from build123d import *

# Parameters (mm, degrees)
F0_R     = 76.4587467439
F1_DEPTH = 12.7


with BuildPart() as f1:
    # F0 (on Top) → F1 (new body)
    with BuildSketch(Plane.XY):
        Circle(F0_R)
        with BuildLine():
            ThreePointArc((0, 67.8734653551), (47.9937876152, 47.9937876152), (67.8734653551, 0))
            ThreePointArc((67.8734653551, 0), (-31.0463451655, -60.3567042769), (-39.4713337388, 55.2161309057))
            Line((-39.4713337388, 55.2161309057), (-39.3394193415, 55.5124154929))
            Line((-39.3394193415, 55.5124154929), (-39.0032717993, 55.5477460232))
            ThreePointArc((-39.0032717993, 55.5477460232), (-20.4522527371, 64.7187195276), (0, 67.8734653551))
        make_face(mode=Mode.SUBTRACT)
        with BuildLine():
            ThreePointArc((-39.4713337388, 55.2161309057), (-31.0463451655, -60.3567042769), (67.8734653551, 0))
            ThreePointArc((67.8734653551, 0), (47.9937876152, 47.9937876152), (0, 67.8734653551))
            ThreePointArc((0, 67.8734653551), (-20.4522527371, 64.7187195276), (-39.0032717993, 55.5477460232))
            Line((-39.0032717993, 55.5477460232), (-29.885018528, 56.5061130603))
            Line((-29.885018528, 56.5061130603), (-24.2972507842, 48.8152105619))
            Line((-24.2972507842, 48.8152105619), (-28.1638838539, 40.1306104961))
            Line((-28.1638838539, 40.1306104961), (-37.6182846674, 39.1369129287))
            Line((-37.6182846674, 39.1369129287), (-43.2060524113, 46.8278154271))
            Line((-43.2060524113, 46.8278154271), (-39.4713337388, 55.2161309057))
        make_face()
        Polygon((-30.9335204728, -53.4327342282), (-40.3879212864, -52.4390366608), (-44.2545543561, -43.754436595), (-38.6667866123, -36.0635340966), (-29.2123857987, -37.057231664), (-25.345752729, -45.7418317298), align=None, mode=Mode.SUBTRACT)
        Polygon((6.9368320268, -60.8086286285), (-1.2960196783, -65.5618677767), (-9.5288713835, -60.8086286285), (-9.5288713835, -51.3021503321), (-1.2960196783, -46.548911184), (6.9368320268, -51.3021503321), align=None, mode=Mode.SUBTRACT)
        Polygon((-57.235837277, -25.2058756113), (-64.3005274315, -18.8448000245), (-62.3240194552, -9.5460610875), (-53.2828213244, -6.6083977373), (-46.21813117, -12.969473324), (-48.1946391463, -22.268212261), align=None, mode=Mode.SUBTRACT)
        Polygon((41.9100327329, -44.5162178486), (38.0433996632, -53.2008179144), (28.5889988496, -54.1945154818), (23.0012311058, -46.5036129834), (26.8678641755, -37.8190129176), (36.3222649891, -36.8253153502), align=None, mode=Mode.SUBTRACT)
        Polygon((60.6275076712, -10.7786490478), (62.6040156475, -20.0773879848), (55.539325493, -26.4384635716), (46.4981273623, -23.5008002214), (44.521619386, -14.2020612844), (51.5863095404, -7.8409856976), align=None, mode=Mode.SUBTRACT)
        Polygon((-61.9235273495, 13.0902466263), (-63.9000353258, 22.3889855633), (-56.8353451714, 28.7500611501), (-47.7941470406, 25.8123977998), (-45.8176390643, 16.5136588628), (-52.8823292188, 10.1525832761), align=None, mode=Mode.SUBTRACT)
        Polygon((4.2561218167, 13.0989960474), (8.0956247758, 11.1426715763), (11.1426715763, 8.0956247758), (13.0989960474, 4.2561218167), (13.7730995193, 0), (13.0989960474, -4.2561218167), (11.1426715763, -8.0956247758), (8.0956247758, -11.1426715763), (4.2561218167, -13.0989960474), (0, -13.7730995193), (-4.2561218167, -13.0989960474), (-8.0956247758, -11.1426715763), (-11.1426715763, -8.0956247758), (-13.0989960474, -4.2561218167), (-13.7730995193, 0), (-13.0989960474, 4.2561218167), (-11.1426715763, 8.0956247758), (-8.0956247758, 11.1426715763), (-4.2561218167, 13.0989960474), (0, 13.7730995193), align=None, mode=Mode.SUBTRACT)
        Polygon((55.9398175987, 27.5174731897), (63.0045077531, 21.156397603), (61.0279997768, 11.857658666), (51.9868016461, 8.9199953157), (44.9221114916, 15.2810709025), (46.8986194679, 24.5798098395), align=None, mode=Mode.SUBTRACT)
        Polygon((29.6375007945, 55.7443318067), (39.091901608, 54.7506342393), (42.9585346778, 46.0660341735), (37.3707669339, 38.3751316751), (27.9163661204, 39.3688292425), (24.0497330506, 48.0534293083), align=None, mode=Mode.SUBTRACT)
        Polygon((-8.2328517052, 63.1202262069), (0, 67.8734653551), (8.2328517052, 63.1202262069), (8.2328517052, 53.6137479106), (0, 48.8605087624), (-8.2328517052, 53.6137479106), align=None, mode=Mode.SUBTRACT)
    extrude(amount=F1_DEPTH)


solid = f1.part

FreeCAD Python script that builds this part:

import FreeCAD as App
import Part
import Sketcher
from FreeCAD import Vector
Q = App.Units.Quantity


def add_polygon(sketch, points):
    """Adds a closed chain of lines whose ends are joined by coincident constraints."""
    first, n = sketch.GeometryCount, len(points)
    for a, b in zip(points, points[1:] + points[:1]):
        sketch.addGeometry(Part.LineSegment(App.Vector(*a, 0), App.Vector(*b, 0)), False)
    for i in range(n):
        sketch.addConstraint(Sketcher.Constraint("Coincident", first + i, 2, first + (i + 1) % n, 1))

doc = App.newDocument("Part")
body = doc.addObject("PartDesign::Body", "Body")

sketch1 = doc.addObject("Sketcher::SketchObject", "Sketch")
body.addObject(sketch1)
sketch1.AttachmentSupport = (doc.XY_Plane, [""])
sketch1.MapMode = "FlatFace"
sketch1.addGeometry(Part.Circle(Vector(0, 0, 0), Vector(0, 0, 1), 76.458747), False)
add_polygon(sketch1, [(-25.345753, -45.741832), (-30.93352, -53.432734), (-40.387921, -52.439037), (-44.254554, -43.754437), (-38.666787, -36.063534), (-29.212386, -37.057232)])
add_polygon(sketch1, [(6.936832, -51.30215), (6.936832, -60.808629), (-1.29602, -65.561868), (-9.528871, -60.808629), (-9.528871, -51.30215), (-1.29602, -46.548911)])
add_polygon(sketch1, [(-48.194639, -22.268212), (-57.235837, -25.205876), (-64.300527, -18.8448), (-62.324019, -9.546061), (-53.282821, -6.608398), (-46.218131, -12.969473)])
add_polygon(sketch1, [(36.322265, -36.825315), (41.910033, -44.516218), (38.0434, -53.200818), (28.588999, -54.194515), (23.001231, -46.503613), (26.867864, -37.819013)])
add_polygon(sketch1, [(0, 13.7731), (4.256122, 13.098996), (8.095625, 11.142672), (11.142672, 8.095625), (13.098996, 4.256122), (13.7731, 0), (13.098996, -4.256122), (11.142672, -8.095625), (8.095625, -11.142672), (4.256122, -13.098996), (0, -13.7731), (-4.256122, -13.098996), (-8.095625, -11.142672), (-11.142672, -8.095625), (-13.098996, -4.256122), (-13.7731, 0), (-13.098996, 4.256122), (-11.142672, 8.095625), (-8.095625, 11.142672), (-4.256122, 13.098996)])
add_polygon(sketch1, [(51.58631, -7.840986), (60.627508, -10.778649), (62.604016, -20.077388), (55.539325, -26.438464), (46.498127, -23.5008), (44.521619, -14.202061)])
add_polygon(sketch1, [(-52.882329, 10.152583), (-61.923527, 13.090247), (-63.900035, 22.388986), (-56.835345, 28.750061), (-47.794147, 25.812398), (-45.817639, 16.513659)])
add_polygon(sketch1, [(-39.339419, 55.512415), (-39.003272, 55.547746), (-29.885019, 56.506113), (-24.297251, 48.815211), (-28.163884, 40.13061), (-37.618285, 39.136913), (-43.206052, 46.827815), (-39.471334, 55.216131)])
add_polygon(sketch1, [(46.898619, 24.57981), (55.939818, 27.517473), (63.004508, 21.156398), (61.028, 11.857659), (51.986802, 8.919995), (44.922111, 15.281071)])
add_polygon(sketch1, [(-8.232852, 53.613748), (-8.232852, 63.120226), (0, 67.873465), (8.232852, 63.120226), (8.232852, 53.613748), (0, 48.860509)])
add_polygon(sketch1, [(24.049733, 48.053429), (29.637501, 55.744332), (39.091902, 54.750634), (42.958535, 46.066034), (37.370767, 38.375132), (27.916366, 39.368829)])
sketch1.addConstraint([
    Sketcher.Constraint("Vertical", 7),
    Sketcher.Constraint("Vertical", 10),
    Sketcher.Constraint("Vertical", 71),
    Sketcher.Constraint("Vertical", 74),
    Sketcher.Constraint("Coincident", 0, 3, -1, 1),
    Sketcher.Constraint("Symmetric", 25, 2, 35, 2, -1, 1),
    Sketcher.Constraint("Symmetric", 26, 2, 36, 2, -1, 1),
    Sketcher.Constraint("Symmetric", 27, 2, 37, 2, -1, 1),
    Sketcher.Constraint("Symmetric", 28, 2, 38, 2, -1, 1),
    Sketcher.Constraint("Symmetric", 29, 2, 39, 2, -1, 1),
    Sketcher.Constraint("Symmetric", 30, 2, 40, 2, -1, 1),
    Sketcher.Constraint("Symmetric", 31, 2, 41, 2, -1, 1),
    Sketcher.Constraint("Symmetric", 32, 2, 42, 2, -1, 1),
    Sketcher.Constraint("Symmetric", 33, 2, 43, 2, -1, 1),
    Sketcher.Constraint("Symmetric", 34, 2, 44, 2, -1, 1),
    Sketcher.Constraint("Symmetric", 33, 2, 35, 2, -2),
    Sketcher.Constraint("Symmetric", 32, 2, 36, 2, -2),
    Sketcher.Constraint("Symmetric", 31, 2, 37, 2, -2),
    Sketcher.Constraint("Symmetric", 30, 2, 38, 2, -2),
    Sketcher.Constraint("Symmetric", 71, 2, 73, 2, -2),
    Sketcher.Constraint("PointOnObject", 29, 2, -1),
    Sketcher.Constraint("PointOnObject", 34, 2, -2),
    Sketcher.Constraint("PointOnObject", 72, 2, -2),
    Sketcher.Constraint("PointOnObject", 75, 2, -2),
    Sketcher.Constraint("Parallel", 1, 4),
    Sketcher.Constraint("Parallel", 2, 5),
    Sketcher.Constraint("Parallel", 3, 6),
    Sketcher.Constraint("Parallel", 8, 11),
    Sketcher.Constraint("Parallel", 9, 12),
    Sketcher.Constraint("Parallel", 13, 16),
    Sketcher.Constraint("Parallel", 14, 17),
    Sketcher.Constraint("Parallel", 15, 18),
    Sketcher.Constraint("Parallel", 19, 22),
    Sketcher.Constraint("Parallel", 20, 23),
    Sketcher.Constraint("Parallel", 21, 24),
    Sketcher.Constraint("Perpendicular", 25, 30),
    Sketcher.Constraint("Perpendicular", 26, 31),
    Sketcher.Constraint("Perpendicular", 27, 32),
    Sketcher.Constraint("Parallel", 45, 48),
    Sketcher.Constraint("Parallel", 46, 49),
    Sketcher.Constraint("Parallel", 47, 50),
    Sketcher.Constraint("Parallel", 48, 51),
    Sketcher.Constraint("Parallel", 49, 52),
    Sketcher.Constraint("Parallel", 50, 53),
    Sketcher.Constraint("Parallel", 51, 54),
    Sketcher.Constraint("Parallel", 52, 55),
    Sketcher.Constraint("Parallel", 53, 56),
    Sketcher.Constraint("Parallel", 24, 57),
    Sketcher.Constraint("Parallel", 57, 58),
    Sketcher.Constraint("Parallel", 22, 59),
    Sketcher.Constraint("Parallel", 23, 60),
    Sketcher.Constraint("Parallel", 58, 61),
    Sketcher.Constraint("Parallel", 59, 62),
    Sketcher.Constraint("Parallel", 60, 63),
    Sketcher.Constraint("Parallel", 63, 64),
    Sketcher.Constraint("Parallel", 16, 65),
    Sketcher.Constraint("Parallel", 17, 66),
    Sketcher.Constraint("Parallel", 18, 67),
    Sketcher.Constraint("Parallel", 65, 68),
    Sketcher.Constraint("Parallel", 66, 69),
    Sketcher.Constraint("Parallel", 67, 70),
    Sketcher.Constraint("Parallel", 11, 72),
    Sketcher.Constraint("Parallel", 12, 73),
    Sketcher.Constraint("Parallel", 72, 75),
    Sketcher.Constraint("Parallel", 73, 76),
    Sketcher.Constraint("Parallel", 4, 77),
    Sketcher.Constraint("Parallel", 5, 78),
    Sketcher.Constraint("Parallel", 6, 79),
    Sketcher.Constraint("Parallel", 77, 80),
    Sketcher.Constraint("Parallel", 78, 81),
    Sketcher.Constraint("Parallel", 79, 82),
    Sketcher.Constraint("Horizontal", 7, 2, 9, 2),
    Sketcher.Constraint("Horizontal", 10, 2, 12, 2),
    Sketcher.Constraint("Equal", 10, 71),
    Sketcher.Constraint("Equal", 1, 2),
    Sketcher.Constraint("Equal", 2, 3),
    Sketcher.Constraint("Equal", 3, 4),
    Sketcher.Constraint("Equal", 6, 8),
    Sketcher.Constraint("Equal", 12, 13),
    Sketcher.Constraint("Equal", 13, 14),
    Sketcher.Constraint("Equal", 14, 15),
    Sketcher.Constraint("Equal", 15, 16),
    Sketcher.Constraint("Equal", 18, 19),
    Sketcher.Constraint("Equal", 19, 20),
    Sketcher.Constraint("Equal", 20, 21),
    Sketcher.Constraint("Equal", 21, 22),
    Sketcher.Constraint("Equal", 25, 26),
    Sketcher.Constraint("Equal", 26, 27),
    Sketcher.Constraint("Equal", 27, 28),
    Sketcher.Constraint("Equal", 28, 29),
    Sketcher.Constraint("Equal", 24, 45),
    Sketcher.Constraint("Equal", 45, 46),
    Sketcher.Constraint("Equal", 46, 47),
    Sketcher.Constraint("Equal", 47, 48),
    Sketcher.Constraint("Equal", 50, 51),
    Sketcher.Constraint("Equal", 51, 52),
    Sketcher.Constraint("Equal", 52, 53),
    Sketcher.Constraint("Equal", 53, 54),
    Sketcher.Constraint("Equal", 56, 59),
    Sketcher.Constraint("Equal", 59, 60),
    Sketcher.Constraint("Equal", 60, 61),
    Sketcher.Constraint("Equal", 61, 62),
    Sketcher.Constraint("Equal", 62, 65),
    Sketcher.Constraint("Equal", 65, 66),
    Sketcher.Constraint("Equal", 66, 67),
    Sketcher.Constraint("Equal", 67, 68),
    Sketcher.Constraint("Equal", 70, 72),
    Sketcher.Constraint("Equal", 76, 77),
    Sketcher.Constraint("Equal", 77, 78),
    Sketcher.Constraint("Equal", 78, 79),
    Sketcher.Constraint("Equal", 79, 80),
    Sketcher.Constraint("Angle", 1, Q("-126 deg")),
    Sketcher.Constraint("Angle", 2, Q("174 deg")),
    Sketcher.Constraint("Angle", 3, Q("114 deg")),
    Sketcher.Constraint("Angle", 8, Q("-150 deg")),
    Sketcher.Constraint("Angle", 13, Q("-162 deg")),
    Sketcher.Constraint("Angle", 14, Q("138 deg")),
    Sketcher.Constraint("Angle", 15, Q("78 deg")),
    Sketcher.Constraint("Angle", 19, Q("-54 deg")),
    Sketcher.Constraint("Angle", 20, Q("-114 deg")),
    Sketcher.Constraint("Angle", 21, Q("-174 deg")),
    Sketcher.Constraint("Angle", 25, Q("-9 deg")),
    Sketcher.Constraint("Angle", 26, Q("-27 deg")),
    Sketcher.Constraint("Angle", 45, Q("-18 deg")),
    Sketcher.Constraint("Angle", 46, Q("-78 deg")),
    Sketcher.Constraint("Angle", 47, Q("-138 deg")),
    Sketcher.Constraint("Diameter", 0, 152.917493),
    Sketcher.Constraint("Distance", 57, 0.337999),
    Sketcher.Constraint("DistanceY", 7, 2, 7, 1, 9.506478),
    Sketcher.Constraint("DistanceY", 14, 2, -1, 1, 18.8448),
    Sketcher.Constraint("DistanceX", -1, 1, 20, 2, 38.0434),
    Sketcher.Constraint("DistanceX", -1, 1, 21, 2, 28.588999),
    Sketcher.Constraint("DistanceX", -1, 1, 29, 2, 13.7731),
    Sketcher.Constraint("DistanceY", 48, 2, -1, 1, 23.5008),
    Sketcher.Constraint("DistanceX", -1, 1, 67, 2, 61.028),
    Sketcher.Constraint("DistanceX", -1, 1, 77, 2, 29.637501),
    Sketcher.Constraint("DistanceX", 1, 2, -1, 1, 30.93352),
    Sketcher.Constraint("DistanceY", 5, 2, -1, 1, 37.057232),
    Sketcher.Constraint("DistanceY", 7, 2, -1, 1, 60.808629),
    Sketcher.Constraint("DistanceX", 8, 2, -1, 1, 1.29602),
    Sketcher.Constraint("DistanceX", 15, 2, -1, 1, 62.324019),
    Sketcher.Constraint("DistanceX", -1, 1, 49, 2, 44.521619),
    Sketcher.Constraint("DistanceY", -1, 1, 53, 2, 28.750061),
    Sketcher.Constraint("DistanceX", 55, 2, -1, 1, 45.817639),
    Sketcher.Constraint("DistanceX", 57, 2, -1, 1, 39.003272),
    Sketcher.Constraint("DistanceY", -1, 1, 59, 2, 48.815211),
    Sketcher.Constraint("DistanceY", -1, 1, 63, 2, 55.216131),
    Sketcher.Constraint("DistanceY", -1, 1, 67, 2, 11.857659),
    Sketcher.Constraint("DistanceY", -1, 1, 75, 2, 48.860509),
    Sketcher.Constraint("DistanceY", -1, 1, 77, 2, 55.744332),
    Sketcher.Constraint("DistanceY", 19, 2, -1, 1, 44.516218),
])
pad1 = doc.addObject("PartDesign::Pad", "Pad")
body.addObject(pad1)
pad1.Profile = sketch1
pad1.Length = Q("0.5 in")

doc.recompute()
